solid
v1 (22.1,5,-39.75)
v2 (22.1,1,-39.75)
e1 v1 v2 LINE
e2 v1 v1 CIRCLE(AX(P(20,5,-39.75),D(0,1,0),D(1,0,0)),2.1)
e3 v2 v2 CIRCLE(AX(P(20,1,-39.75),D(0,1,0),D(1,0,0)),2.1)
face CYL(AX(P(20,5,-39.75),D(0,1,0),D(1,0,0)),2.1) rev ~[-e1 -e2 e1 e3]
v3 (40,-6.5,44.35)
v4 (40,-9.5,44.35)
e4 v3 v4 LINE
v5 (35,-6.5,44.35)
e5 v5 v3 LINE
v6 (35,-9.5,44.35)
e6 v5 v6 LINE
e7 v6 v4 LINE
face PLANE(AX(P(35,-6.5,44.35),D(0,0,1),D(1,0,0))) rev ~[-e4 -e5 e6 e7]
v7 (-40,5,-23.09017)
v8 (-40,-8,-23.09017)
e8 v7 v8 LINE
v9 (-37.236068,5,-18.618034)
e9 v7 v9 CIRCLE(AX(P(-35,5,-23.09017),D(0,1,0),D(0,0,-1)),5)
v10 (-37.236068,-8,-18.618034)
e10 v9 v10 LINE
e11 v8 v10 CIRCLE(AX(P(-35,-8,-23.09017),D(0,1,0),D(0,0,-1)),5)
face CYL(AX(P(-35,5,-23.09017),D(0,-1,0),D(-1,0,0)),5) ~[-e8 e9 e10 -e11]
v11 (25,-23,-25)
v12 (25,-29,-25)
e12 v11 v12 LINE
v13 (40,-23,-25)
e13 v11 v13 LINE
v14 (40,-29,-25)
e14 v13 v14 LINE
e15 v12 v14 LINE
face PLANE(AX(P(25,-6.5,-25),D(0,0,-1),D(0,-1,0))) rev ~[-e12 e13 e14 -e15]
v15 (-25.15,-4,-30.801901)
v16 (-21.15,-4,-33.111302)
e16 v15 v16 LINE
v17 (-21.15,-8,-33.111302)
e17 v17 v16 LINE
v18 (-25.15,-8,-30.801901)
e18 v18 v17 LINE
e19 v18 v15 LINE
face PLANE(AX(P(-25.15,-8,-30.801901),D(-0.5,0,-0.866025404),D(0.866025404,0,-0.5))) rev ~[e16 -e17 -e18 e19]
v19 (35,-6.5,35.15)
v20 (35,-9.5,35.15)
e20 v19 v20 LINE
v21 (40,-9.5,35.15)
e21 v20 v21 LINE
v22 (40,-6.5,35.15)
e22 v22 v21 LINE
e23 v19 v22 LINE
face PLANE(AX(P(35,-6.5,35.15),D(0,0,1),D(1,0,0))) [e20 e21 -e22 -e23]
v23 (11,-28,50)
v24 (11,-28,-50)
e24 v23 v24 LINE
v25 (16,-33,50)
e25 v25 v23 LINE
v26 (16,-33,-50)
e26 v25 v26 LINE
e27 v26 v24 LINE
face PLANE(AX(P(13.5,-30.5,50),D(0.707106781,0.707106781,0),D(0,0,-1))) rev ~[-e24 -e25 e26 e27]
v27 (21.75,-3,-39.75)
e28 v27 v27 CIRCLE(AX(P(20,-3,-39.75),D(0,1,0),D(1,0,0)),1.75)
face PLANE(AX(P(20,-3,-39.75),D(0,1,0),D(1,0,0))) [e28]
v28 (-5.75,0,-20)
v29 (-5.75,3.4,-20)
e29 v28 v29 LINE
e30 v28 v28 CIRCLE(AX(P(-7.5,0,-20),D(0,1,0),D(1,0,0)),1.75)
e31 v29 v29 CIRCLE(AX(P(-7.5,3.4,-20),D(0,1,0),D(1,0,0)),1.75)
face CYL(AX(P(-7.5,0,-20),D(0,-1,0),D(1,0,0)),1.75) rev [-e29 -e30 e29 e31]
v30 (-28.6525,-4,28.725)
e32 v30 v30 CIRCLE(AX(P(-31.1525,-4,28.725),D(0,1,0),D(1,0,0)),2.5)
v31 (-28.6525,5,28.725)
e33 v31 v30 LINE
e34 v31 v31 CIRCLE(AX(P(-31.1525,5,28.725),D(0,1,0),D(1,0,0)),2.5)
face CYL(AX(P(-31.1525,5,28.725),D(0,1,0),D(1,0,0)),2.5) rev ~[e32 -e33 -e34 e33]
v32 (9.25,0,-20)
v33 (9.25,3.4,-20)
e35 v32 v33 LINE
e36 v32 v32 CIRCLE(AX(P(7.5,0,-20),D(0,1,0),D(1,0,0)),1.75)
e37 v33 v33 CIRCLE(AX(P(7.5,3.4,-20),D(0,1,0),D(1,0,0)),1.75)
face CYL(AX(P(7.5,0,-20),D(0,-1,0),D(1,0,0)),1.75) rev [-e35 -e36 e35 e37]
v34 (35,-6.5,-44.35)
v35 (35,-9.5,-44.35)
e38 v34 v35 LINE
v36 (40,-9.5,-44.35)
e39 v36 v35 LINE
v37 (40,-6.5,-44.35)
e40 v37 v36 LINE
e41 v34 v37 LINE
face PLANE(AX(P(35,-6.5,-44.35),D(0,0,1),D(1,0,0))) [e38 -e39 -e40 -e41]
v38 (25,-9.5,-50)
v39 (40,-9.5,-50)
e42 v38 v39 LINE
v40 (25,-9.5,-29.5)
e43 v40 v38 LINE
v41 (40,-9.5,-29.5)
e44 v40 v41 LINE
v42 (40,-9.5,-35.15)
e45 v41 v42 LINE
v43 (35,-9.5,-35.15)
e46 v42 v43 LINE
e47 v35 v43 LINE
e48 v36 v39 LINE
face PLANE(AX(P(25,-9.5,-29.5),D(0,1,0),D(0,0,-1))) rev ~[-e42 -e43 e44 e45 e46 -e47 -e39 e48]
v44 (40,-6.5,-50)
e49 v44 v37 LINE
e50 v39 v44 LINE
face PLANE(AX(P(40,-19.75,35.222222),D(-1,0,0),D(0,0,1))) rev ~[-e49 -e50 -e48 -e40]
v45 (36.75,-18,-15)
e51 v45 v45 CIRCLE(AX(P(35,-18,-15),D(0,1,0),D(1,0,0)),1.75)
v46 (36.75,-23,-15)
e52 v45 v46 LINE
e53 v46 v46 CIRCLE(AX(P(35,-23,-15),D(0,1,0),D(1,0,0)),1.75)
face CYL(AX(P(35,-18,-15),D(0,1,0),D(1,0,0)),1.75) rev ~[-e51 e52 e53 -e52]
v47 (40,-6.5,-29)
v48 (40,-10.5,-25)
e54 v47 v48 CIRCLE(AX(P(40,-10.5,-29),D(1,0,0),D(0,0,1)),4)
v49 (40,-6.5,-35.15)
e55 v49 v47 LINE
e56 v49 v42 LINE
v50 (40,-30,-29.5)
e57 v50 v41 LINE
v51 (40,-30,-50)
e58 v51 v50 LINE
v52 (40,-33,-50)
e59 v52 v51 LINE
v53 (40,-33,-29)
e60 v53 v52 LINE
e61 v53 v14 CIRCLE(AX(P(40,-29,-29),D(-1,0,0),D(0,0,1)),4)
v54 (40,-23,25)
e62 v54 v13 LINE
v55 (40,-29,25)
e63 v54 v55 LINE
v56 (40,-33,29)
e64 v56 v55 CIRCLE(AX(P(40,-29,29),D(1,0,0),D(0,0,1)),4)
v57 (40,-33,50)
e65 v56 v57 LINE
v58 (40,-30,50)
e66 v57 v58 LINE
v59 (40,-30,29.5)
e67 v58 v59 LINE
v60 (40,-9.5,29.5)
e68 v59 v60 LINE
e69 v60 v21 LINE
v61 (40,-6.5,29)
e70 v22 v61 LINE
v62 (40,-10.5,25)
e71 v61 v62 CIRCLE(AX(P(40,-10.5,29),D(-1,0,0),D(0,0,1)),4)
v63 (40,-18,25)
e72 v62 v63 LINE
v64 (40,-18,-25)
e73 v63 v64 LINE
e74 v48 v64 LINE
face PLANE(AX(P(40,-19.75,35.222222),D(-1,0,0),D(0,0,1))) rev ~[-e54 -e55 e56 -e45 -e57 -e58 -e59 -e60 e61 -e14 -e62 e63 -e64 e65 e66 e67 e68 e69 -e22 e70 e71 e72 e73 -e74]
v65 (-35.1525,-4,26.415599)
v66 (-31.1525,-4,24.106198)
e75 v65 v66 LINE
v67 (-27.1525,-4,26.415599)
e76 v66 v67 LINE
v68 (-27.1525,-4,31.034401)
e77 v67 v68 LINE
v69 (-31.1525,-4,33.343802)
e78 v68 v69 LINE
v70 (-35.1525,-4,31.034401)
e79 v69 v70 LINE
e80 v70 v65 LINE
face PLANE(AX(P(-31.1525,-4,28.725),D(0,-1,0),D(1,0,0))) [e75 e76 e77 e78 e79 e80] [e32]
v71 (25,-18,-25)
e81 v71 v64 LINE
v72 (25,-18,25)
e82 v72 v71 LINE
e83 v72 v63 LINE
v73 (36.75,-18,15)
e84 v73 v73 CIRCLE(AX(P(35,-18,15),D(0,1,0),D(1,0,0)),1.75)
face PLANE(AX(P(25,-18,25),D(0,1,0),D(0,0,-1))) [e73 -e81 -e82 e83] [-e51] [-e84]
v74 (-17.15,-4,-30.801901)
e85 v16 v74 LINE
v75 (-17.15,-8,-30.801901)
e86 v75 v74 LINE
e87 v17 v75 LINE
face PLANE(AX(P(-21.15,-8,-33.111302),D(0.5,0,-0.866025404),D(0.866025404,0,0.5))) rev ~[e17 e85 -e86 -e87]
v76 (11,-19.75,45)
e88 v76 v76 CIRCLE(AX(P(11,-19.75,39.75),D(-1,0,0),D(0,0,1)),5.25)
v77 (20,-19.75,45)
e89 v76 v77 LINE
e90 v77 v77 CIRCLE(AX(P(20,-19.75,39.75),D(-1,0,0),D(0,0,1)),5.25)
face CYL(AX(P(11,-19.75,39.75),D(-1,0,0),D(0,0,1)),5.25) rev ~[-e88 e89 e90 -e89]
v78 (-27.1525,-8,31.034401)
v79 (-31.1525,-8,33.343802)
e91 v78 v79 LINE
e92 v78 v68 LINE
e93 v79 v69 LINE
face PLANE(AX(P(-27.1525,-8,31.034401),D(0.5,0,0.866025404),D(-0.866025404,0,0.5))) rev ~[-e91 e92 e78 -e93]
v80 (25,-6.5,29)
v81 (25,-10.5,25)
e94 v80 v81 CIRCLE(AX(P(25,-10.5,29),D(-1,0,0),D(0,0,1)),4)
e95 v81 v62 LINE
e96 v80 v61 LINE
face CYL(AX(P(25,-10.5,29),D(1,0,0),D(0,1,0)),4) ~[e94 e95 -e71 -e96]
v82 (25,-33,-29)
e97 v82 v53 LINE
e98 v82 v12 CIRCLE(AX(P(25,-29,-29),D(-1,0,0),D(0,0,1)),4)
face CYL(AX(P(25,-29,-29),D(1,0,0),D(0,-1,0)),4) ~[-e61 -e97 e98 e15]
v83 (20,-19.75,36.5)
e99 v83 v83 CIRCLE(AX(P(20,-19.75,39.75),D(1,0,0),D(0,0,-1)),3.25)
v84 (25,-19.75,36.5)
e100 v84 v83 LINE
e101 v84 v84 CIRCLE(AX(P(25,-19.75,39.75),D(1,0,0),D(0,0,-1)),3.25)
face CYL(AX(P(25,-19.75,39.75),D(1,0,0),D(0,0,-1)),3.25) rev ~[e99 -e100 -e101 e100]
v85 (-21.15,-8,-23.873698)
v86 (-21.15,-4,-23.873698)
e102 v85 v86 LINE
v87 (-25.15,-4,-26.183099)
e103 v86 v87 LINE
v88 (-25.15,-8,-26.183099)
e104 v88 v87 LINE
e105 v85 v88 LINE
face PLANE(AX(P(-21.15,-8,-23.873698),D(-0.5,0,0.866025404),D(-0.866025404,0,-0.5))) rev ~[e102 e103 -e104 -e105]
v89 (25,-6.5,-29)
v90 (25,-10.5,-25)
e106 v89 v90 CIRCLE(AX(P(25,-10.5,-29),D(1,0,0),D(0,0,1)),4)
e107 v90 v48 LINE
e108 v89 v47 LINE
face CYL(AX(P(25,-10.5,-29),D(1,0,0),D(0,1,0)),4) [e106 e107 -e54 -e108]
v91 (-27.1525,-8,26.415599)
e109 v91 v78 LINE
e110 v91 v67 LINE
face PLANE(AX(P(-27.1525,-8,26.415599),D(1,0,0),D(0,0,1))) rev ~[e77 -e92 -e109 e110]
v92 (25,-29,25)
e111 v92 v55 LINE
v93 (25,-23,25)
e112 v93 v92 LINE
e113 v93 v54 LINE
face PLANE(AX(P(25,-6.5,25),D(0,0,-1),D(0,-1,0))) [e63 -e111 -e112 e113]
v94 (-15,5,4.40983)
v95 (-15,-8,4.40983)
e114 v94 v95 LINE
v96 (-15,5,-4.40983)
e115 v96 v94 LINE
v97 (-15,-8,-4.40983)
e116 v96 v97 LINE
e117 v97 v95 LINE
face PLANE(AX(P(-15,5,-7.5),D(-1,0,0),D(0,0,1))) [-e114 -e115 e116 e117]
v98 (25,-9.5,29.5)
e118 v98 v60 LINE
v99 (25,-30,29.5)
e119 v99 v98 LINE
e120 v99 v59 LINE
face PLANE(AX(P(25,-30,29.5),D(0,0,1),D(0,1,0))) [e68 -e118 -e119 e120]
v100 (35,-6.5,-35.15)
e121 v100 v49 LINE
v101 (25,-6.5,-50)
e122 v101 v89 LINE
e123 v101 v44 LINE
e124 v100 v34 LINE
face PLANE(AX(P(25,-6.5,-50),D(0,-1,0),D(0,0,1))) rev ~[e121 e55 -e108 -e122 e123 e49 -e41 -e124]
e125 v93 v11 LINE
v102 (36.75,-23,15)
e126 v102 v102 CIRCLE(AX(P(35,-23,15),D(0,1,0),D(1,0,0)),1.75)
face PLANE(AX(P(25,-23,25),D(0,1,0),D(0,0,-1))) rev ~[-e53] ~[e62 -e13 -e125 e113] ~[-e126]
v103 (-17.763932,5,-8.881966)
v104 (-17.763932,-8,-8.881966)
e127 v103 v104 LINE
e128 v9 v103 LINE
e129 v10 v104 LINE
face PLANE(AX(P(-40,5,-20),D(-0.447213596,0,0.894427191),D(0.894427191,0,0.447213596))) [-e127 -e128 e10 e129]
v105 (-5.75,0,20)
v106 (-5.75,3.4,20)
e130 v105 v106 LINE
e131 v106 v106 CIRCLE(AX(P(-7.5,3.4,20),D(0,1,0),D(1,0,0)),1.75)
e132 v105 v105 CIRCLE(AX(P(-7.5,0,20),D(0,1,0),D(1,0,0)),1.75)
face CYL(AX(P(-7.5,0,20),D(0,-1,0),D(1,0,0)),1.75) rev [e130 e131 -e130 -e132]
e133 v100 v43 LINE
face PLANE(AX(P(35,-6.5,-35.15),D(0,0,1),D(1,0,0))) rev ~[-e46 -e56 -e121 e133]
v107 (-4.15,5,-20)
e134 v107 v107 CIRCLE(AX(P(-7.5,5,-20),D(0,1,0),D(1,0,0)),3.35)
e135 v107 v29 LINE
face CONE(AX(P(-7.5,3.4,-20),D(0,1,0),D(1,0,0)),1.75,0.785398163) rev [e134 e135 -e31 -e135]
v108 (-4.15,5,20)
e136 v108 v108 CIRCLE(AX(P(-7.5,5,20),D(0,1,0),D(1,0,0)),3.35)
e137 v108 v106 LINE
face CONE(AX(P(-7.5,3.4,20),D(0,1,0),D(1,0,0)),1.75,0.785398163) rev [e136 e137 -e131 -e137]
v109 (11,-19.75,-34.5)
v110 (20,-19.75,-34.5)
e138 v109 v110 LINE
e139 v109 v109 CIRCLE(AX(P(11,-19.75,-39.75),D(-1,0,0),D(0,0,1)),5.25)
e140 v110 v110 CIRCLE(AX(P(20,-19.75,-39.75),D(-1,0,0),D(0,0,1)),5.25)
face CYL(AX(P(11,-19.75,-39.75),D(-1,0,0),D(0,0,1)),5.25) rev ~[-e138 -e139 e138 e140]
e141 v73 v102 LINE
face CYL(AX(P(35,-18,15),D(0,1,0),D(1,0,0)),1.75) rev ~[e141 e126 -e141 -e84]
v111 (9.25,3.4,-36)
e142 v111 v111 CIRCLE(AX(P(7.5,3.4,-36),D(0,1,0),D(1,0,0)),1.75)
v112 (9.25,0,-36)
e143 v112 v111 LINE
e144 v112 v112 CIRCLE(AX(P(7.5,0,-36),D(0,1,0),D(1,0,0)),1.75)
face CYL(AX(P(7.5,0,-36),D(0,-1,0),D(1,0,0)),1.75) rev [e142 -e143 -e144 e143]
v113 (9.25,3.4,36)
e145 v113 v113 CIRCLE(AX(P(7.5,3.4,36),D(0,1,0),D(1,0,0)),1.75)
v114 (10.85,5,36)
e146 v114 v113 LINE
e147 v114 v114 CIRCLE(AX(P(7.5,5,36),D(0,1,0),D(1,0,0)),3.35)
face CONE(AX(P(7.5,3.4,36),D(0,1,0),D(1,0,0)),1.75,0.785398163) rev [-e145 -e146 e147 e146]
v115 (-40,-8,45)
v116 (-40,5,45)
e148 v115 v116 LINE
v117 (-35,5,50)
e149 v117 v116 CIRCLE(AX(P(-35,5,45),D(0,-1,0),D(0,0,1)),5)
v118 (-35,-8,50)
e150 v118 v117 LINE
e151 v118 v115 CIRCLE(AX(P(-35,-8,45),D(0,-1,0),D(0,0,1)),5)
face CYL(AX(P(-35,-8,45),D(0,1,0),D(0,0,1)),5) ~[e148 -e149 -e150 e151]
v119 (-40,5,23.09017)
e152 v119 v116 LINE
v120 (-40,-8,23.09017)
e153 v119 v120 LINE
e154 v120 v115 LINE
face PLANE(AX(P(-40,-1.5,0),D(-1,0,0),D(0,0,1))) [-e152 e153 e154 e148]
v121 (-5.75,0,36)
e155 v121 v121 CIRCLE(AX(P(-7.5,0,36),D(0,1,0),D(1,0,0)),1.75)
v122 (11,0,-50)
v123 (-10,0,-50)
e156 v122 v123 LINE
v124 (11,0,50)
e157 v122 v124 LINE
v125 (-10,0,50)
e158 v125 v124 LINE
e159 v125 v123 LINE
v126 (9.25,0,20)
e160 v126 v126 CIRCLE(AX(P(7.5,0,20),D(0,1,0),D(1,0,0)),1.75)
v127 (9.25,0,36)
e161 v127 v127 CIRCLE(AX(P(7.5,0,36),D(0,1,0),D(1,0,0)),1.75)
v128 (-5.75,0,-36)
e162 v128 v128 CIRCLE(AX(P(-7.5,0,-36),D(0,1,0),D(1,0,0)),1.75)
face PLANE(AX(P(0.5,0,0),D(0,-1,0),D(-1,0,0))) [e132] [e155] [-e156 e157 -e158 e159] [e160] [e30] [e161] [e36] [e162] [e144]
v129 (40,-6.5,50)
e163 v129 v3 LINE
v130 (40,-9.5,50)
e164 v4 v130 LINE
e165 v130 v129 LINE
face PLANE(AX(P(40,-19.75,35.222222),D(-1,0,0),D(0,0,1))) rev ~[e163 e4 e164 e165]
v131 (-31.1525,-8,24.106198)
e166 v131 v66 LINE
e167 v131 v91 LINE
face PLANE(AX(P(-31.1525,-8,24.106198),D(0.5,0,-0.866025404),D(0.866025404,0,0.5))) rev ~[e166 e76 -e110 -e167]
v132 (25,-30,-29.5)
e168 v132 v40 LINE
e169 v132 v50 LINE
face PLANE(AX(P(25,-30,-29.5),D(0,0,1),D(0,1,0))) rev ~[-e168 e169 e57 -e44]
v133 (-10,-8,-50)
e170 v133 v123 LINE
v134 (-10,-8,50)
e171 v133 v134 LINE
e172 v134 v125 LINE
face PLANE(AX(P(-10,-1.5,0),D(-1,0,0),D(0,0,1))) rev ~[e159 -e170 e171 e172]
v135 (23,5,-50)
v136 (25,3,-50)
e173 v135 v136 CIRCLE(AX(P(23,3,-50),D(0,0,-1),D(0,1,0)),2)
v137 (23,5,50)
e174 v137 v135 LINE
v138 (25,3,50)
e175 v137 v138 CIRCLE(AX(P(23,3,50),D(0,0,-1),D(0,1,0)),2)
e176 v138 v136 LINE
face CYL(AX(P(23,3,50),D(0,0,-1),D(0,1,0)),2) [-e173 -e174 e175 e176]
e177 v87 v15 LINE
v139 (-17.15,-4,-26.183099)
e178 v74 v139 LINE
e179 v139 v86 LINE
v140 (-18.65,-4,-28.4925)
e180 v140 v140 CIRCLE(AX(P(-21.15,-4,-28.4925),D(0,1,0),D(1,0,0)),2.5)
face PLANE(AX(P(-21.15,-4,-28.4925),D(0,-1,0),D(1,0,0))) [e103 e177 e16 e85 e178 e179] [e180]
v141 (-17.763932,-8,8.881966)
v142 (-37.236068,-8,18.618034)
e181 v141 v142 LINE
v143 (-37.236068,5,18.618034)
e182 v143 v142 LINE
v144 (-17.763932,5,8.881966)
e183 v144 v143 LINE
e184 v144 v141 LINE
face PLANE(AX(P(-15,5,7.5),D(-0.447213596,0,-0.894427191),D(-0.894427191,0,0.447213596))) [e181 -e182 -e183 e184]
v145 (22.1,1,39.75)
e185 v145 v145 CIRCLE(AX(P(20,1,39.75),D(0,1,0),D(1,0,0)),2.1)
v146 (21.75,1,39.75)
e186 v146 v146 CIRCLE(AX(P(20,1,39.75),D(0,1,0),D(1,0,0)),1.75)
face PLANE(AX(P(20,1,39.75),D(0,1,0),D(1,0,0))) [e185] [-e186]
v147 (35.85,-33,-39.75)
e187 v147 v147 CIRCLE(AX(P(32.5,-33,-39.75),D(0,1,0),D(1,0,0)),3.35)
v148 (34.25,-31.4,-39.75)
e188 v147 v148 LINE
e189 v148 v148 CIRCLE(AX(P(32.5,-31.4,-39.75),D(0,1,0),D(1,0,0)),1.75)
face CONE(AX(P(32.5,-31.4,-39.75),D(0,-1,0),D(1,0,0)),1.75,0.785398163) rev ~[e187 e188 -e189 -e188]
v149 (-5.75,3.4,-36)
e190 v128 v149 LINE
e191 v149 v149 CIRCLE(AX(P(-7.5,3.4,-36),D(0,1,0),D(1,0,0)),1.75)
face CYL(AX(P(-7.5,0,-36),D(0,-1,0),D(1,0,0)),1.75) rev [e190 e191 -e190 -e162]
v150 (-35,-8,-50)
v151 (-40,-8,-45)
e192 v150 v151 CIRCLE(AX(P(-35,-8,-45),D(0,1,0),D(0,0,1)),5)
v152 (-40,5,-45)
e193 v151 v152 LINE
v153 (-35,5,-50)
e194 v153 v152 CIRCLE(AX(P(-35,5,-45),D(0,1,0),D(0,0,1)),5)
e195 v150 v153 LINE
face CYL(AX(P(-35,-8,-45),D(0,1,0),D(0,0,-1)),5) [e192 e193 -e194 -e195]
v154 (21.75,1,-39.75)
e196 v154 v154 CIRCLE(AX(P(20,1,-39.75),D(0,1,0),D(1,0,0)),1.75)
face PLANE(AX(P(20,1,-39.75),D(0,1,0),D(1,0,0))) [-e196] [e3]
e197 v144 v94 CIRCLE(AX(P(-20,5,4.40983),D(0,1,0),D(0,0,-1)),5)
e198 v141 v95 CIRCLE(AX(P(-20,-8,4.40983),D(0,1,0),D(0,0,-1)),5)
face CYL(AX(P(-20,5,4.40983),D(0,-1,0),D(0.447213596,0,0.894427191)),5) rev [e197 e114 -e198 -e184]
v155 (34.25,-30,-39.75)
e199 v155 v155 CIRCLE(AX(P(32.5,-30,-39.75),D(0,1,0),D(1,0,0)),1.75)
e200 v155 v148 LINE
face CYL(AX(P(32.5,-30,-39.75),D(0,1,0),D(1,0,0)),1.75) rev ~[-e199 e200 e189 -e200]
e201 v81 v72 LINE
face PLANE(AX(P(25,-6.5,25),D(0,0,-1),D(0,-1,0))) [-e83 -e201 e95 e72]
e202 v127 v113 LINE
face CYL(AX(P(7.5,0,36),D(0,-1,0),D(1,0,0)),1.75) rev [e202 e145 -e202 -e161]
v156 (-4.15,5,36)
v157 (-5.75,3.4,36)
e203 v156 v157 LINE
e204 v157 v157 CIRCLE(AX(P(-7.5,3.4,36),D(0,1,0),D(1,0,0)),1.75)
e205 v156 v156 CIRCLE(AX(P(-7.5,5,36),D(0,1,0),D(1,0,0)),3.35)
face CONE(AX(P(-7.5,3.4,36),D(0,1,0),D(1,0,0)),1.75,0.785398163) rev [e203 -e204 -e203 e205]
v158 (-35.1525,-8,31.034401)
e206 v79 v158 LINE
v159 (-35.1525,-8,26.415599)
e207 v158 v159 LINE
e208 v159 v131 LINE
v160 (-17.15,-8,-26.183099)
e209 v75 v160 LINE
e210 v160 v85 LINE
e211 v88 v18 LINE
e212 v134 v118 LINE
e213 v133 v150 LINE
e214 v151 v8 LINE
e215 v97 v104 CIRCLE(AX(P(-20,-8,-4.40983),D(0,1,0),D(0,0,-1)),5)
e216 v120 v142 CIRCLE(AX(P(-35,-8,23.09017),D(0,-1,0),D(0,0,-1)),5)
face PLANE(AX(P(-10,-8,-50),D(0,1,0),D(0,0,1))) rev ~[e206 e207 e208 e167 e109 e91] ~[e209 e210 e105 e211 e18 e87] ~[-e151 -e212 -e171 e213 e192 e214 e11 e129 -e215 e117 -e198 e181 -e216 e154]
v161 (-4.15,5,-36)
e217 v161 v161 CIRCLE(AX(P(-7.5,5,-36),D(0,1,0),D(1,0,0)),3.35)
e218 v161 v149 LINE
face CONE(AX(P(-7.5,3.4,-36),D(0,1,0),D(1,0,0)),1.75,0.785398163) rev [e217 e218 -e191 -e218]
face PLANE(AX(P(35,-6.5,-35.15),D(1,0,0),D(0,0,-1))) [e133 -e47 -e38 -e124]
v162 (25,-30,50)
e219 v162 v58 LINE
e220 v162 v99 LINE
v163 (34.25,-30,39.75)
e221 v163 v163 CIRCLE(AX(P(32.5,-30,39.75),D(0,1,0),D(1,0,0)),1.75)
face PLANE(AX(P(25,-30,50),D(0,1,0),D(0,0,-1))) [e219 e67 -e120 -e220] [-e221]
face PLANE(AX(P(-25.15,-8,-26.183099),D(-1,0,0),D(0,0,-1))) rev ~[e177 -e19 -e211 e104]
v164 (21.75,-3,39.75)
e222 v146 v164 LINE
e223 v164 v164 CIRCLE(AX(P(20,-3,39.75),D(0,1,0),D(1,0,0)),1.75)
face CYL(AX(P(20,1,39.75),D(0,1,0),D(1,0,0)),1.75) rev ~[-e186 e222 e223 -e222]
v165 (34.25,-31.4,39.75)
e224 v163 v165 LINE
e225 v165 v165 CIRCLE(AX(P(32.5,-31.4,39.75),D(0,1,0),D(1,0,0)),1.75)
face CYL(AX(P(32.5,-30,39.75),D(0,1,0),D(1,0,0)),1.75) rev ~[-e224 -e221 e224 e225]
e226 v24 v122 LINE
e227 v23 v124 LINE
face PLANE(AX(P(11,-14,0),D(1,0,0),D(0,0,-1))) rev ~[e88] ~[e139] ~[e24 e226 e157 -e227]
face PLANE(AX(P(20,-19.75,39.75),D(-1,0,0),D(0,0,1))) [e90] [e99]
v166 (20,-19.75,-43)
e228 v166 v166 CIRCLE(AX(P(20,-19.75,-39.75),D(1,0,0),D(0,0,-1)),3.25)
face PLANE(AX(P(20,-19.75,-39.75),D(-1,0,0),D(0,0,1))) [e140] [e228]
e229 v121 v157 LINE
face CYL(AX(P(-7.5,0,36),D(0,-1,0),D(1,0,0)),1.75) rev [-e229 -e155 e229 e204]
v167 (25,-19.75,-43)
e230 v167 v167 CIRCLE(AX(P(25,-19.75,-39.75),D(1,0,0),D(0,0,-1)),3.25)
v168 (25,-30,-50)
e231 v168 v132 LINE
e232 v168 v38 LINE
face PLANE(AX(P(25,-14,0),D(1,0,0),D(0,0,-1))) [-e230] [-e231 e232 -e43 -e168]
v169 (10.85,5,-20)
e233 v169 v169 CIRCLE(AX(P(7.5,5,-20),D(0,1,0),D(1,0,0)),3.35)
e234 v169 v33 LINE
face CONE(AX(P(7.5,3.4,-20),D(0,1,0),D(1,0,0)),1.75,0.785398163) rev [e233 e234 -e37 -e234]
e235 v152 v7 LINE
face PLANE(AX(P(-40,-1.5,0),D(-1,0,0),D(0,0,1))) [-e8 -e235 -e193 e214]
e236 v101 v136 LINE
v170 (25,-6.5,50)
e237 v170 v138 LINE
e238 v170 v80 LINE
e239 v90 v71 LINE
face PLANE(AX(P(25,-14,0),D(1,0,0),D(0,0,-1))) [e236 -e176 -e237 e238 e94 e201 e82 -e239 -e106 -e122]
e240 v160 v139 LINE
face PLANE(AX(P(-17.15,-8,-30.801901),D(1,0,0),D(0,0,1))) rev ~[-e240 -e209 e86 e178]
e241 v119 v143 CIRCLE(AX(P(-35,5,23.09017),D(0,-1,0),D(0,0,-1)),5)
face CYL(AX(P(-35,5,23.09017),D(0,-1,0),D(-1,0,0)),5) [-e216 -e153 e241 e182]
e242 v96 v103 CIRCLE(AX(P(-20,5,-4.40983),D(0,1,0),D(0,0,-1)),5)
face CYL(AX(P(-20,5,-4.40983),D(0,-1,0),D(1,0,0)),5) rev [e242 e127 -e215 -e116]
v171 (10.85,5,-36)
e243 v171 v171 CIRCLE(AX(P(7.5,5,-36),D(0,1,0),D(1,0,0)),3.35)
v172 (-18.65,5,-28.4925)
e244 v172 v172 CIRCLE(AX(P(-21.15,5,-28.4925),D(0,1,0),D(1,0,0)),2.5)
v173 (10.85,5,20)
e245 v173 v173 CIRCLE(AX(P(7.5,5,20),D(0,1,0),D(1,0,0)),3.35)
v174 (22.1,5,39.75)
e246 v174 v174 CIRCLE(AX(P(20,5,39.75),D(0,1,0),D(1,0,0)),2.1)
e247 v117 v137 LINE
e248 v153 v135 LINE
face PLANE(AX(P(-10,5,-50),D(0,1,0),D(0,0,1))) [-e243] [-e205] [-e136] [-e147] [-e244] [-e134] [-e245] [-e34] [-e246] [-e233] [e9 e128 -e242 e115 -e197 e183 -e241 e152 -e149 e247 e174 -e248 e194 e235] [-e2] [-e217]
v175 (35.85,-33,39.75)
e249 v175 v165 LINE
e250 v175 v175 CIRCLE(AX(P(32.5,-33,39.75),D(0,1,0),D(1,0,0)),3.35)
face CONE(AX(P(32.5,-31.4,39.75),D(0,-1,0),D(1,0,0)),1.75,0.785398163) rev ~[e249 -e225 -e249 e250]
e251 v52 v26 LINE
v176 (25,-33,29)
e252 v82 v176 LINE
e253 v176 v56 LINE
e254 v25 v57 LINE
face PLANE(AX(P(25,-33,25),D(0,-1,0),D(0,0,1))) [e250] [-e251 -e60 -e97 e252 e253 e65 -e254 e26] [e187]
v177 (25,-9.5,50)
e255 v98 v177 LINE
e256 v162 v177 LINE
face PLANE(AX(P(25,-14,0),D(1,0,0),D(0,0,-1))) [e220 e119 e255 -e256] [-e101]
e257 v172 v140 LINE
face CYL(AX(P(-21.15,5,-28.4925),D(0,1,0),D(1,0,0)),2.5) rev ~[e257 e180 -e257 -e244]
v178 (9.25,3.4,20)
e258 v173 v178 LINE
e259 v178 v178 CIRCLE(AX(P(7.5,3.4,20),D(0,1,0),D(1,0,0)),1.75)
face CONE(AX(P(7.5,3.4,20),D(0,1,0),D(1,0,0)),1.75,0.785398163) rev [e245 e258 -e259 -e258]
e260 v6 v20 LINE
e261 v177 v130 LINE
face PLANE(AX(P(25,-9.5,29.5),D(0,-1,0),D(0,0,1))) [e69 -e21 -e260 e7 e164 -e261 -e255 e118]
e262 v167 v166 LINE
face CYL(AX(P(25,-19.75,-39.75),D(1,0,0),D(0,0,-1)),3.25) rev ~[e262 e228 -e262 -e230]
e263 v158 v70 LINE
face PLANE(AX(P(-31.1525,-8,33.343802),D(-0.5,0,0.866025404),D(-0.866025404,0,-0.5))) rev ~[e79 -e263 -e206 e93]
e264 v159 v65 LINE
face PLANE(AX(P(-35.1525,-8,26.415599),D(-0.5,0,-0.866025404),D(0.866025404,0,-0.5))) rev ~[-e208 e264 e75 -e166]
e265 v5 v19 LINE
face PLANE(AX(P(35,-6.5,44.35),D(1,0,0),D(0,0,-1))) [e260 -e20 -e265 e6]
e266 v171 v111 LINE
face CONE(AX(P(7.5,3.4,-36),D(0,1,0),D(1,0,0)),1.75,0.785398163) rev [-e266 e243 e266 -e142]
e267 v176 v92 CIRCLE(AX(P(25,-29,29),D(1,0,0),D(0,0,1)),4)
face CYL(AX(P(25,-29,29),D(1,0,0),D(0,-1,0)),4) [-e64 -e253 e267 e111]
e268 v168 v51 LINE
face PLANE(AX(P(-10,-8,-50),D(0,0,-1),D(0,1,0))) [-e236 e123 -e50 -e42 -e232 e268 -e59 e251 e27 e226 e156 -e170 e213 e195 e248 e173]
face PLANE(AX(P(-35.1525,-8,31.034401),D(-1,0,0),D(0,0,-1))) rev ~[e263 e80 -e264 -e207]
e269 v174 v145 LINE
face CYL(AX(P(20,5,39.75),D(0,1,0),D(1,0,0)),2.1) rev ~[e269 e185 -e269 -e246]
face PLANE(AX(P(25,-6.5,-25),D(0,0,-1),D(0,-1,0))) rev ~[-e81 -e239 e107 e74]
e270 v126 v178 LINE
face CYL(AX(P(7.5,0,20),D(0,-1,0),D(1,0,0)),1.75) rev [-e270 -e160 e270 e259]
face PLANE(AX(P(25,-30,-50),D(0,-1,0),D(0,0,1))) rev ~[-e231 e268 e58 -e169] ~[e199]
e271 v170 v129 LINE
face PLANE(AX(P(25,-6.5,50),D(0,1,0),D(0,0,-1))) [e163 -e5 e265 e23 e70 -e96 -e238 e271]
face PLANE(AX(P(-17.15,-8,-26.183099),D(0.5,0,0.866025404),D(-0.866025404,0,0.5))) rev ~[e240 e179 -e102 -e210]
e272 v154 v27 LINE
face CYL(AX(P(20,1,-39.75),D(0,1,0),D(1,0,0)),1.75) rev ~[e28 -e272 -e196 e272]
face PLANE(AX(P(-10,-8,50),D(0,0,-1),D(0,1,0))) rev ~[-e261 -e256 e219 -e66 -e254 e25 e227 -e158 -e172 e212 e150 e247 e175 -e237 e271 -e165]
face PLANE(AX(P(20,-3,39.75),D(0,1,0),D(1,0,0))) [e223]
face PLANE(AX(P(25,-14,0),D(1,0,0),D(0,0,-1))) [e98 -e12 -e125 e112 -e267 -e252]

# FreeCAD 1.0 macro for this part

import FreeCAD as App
import Part
import Sketcher
Q = App.Units.Quantity


def edges_at(feature, points):
    """Names of the edges that pass closest to the given points."""
    edges = feature.Shape.Edges
    near = lambda p: min(range(len(edges)), key=lambda i: edges[i].distToShape(Part.Vertex(*p))[0])
    return sorted({f"Edge{near(p) + 1}" for p in points})


def add_polygon(sketch, points):
    """Adds a closed chain of lines whose ends are joined by coincident constraints."""
    first, n = sketch.GeometryCount, len(points)
    for a, b in zip(points, points[1:] + points[:1]):
        sketch.addGeometry(Part.LineSegment(App.Vector(*a, 0), App.Vector(*b, 0)), False)
    for i in range(n):
        sketch.addConstraint(Sketcher.Constraint("Coincident", first + i, 2, first + (i + 1) % n, 1))

doc = App.newDocument("Part")
params = doc.addObject("Spreadsheet::Sheet", "Params")
for row, (alias, value) in enumerate([
    ("sketch1_diameter", "3.5 mm"),
    ("sketch1_width", "21 mm"),
    ("sketch1_height", "100 mm"),
    ("pad1_length", "5 mm"),
    ("sketch2_width", "38 mm"),
    ("sketch2_height", "100 mm"),
    ("pad2_length", "14 mm"),
    ("sketch3_width", "5 mm"),
    ("sketch3_height", "50 mm"),
    ("pad3_length", "15 mm"),
    ("sketch4_diameter", "3.5 mm"),
    ("sketch5_width", "3 mm"),
    ("sketch5_height", "25 mm"),
    ("sketch5_width2", "20.5 mm"),
    ("pad4_length", "15 mm"),
    ("sketch6_diameter", "6.5 mm"),
    ("sketch7_diameter", "10.5 mm"),
    ("pocket3_length", "9 mm"),
    ("sketch8_width", "5 mm"),
    ("sketch8_height", "9.2 mm"),
    ("sketch9_width", "5 mm"),
    ("sketch9_height", "9.2 mm"),
    ("sketch10_diameter", "3.5 mm"),
    ("sketch11_width", "13 mm"),
    ("sketch11_height", "100 mm"),
    ("pad5_length", "30 mm"),
    ("sketch12_diameter", "5 mm"),
    ("pocket8_length", "4 mm"),
    ("sketch14_diameter", "4.2 mm"),
    ("pocket9_length", "4 mm"),
    ("chamfer_size", "1.6 mm"),
    ("sketch15_height", "40 mm"),
    ("sketch15_height2", "15 mm"),
    ("chamfer2_size", "1.6 mm"),
    ("chamfer3_size", "5 mm"),
    ("sketch16_diameter", "3.5 mm"),
    ("pocket11_length", "4 mm"),
    ("fillet_radius", "5 mm"),
    ("fillet2_radius", "2 mm"),
    ("fillet3_radius", "4 mm"),
], start=1):
    params.set(f"A{row}", alias)
    params.set(f"B{row}", "=" + value)
    params.setAlias(f"B{row}", alias)

body = doc.addObject("PartDesign::Body", "Body")

sketch1 = doc.addObject("Sketcher::SketchObject", "Sketch")
body.addObject(sketch1)
sketch1.AttachmentSupport = (doc.XZ_Plane, [""])
sketch1.MapMode = "FlatFace"
add_polygon(sketch1, [(11, -50), (-10, -50), (-10, 50), (11, 50)])
sketch1.addGeometry(Part.Circle(App.Vector(7.5, 36, 0), App.Vector(0, 0, 1), 1.8), False)
sketch1.addGeometry(Part.Circle(App.Vector(7.5, 20, 0), App.Vector(0, 0, 1), 1.8), False)
sketch1.addGeometry(Part.Circle(App.Vector(-7.5, 36, 0), App.Vector(0, 0, 1), 1.8), False)
sketch1.addGeometry(Part.Circle(App.Vector(-7.5, 20, 0), App.Vector(0, 0, 1), 1.8), False)
sketch1.addGeometry(Part.Circle(App.Vector(7.5, -20, 0), App.Vector(0, 0, 1), 1.8), False)
sketch1.addGeometry(Part.Circle(App.Vector(7.5, -36, 0), App.Vector(0, 0, 1), 1.8), False)
sketch1.addGeometry(Part.Circle(App.Vector(-7.5, -20, 0), App.Vector(0, 0, 1), 1.8), False)
sketch1.addGeometry(Part.Circle(App.Vector(-7.5, -36, 0), App.Vector(0, 0, 1), 1.8), False)
sketch1.addConstraint([
    Sketcher.Constraint("Horizontal", 0),
    Sketcher.Constraint("Vertical", 1),
    Sketcher.Constraint("Horizontal", 2),
    Sketcher.Constraint("Vertical", 3),
    Sketcher.Constraint("Equal", 4, 5),
    Sketcher.Constraint("Equal", 5, 6),
    Sketcher.Constraint("Equal", 6, 7),
    Sketcher.Constraint("Equal", 7, 8),
    Sketcher.Constraint("Equal", 8, 9),
    Sketcher.Constraint("Equal", 9, 10),
    Sketcher.Constraint("Equal", 10, 11),
    Sketcher.Constraint("Symmetric", 7, 3, 8, 3, -1, 1),
    Sketcher.Constraint("Symmetric", 6, 3, 9, 3, -1, 1),
    Sketcher.Constraint("Symmetric", 5, 3, 10, 3, -1, 1),
    Sketcher.Constraint("Symmetric", 4, 3, 11, 3, -1, 1),
    Sketcher.Constraint("Symmetric", 4, 3, 6, 3, -2),
    Sketcher.Constraint("Symmetric", 5, 3, 7, 3, -2),
    Sketcher.Constraint("Vertical", 4, 3, 5, 3),
    Sketcher.Constraint("Diameter", 4, Q("3.5 mm")),
    Sketcher.Constraint("DistanceX", 0, 2, 0, 1, Q("21 mm")),
    Sketcher.Constraint("DistanceY", 1, 1, 1, 2, Q("100 mm")),
    Sketcher.Constraint("DistanceY", -1, 1, 4, 3, Q("36 mm")),
    Sketcher.Constraint("DistanceY", -1, 1, 5, 3, Q("20 mm")),
    Sketcher.Constraint("DistanceX", 0, 2, -1, 1, Q("10 mm")),
    Sketcher.Constraint("DistanceY", 0, 2, -1, 1, Q("50 mm")),
    Sketcher.Constraint("DistanceX", 6, 3, 4, 3, Q("15 mm")),
])
sketch1.setExpression("Constraints[22]", "Params.sketch1_diameter")
sketch1.setExpression("Constraints[23]", "Params.sketch1_width")
sketch1.setExpression("Constraints[24]", "Params.sketch1_height")
pad1 = doc.addObject("PartDesign::Pad", "Pad")
body.addObject(pad1)
pad1.Profile = sketch1
pad1.setExpression("Length", "Params.pad1_length")
pad1.Reversed = True

sketch2 = doc.addObject("Sketcher::SketchObject", "Sketch001")
body.addObject(sketch2)
sketch2.AttachmentSupport = (doc.YZ_Plane, [""])
sketch2.MapMode = "FlatFace"
sketch2.AttachmentOffset = App.Placement(App.Vector(0, 0, 11), App.Rotation())
add_polygon(sketch2, [(5, 50), (-33, 50), (-33, -50), (5, -50)])
sketch2.addConstraint([
    Sketcher.Constraint("Horizontal", 0),
    Sketcher.Constraint("Vertical", 1),
    Sketcher.Constraint("Horizontal", 2),
    Sketcher.Constraint("Vertical", 3),
    Sketcher.Constraint("DistanceX", 0, 2, 0, 1, Q("38 mm")),
    Sketcher.Constraint("DistanceY", 1, 2, 1, 1, Q("100 mm")),
    Sketcher.Constraint("DistanceX", 0, 2, -1, 1, Q("33 mm")),
    Sketcher.Constraint("DistanceY", -1, 1, 0, 2, Q("50 mm")),
])
sketch2.setExpression("Constraints[8]", "Params.sketch2_width")
sketch2.setExpression("Constraints[9]", "Params.sketch2_height")
pad2 = doc.addObject("PartDesign::Pad", "Pad001")
body.addObject(pad2)
pad2.Profile = sketch2
pad2.setExpression("Length", "Params.pad2_length")

sketch3 = doc.addObject("Sketcher::SketchObject", "Sketch002")
body.addObject(sketch3)
sketch3.AttachmentSupport = (doc.YZ_Plane, [""])
sketch3.MapMode = "FlatFace"
sketch3.AttachmentOffset = App.Placement(App.Vector(0, 0, 25), App.Rotation())
add_polygon(sketch3, [(-18, 25), (-23, 25), (-23, -25), (-18, -25)])
sketch3.addConstraint([
    Sketcher.Constraint("Horizontal", 0),
    Sketcher.Constraint("Vertical", 1),
    Sketcher.Constraint("Horizontal", 2),
    Sketcher.Constraint("Vertical", 3),
    Sketcher.Constraint("DistanceX", 0, 2, 0, 1, Q("5 mm")),
    Sketcher.Constraint("DistanceY", 1, 2, 1, 1, Q("50 mm")),
    Sketcher.Constraint("DistanceX", 0, 2, -1, 1, Q("23 mm")),
    Sketcher.Constraint("DistanceY", -1, 1, 0, 2, Q("25 mm")),
])
sketch3.setExpression("Constraints[8]", "Params.sketch3_width")
sketch3.setExpression("Constraints[9]", "Params.sketch3_height")
pad3 = doc.addObject("PartDesign::Pad", "Pad002")
body.addObject(pad3)
pad3.Profile = sketch3
pad3.setExpression("Length", "Params.pad3_length")

sketch4 = doc.addObject("Sketcher::SketchObject", "Sketch003")
body.addObject(sketch4)
sketch4.AttachmentSupport = (doc.XZ_Plane, [""])
sketch4.MapMode = "FlatFace"
sketch4.AttachmentOffset = App.Placement(App.Vector(0, 0, 18), App.Rotation())
sketch4.addGeometry([
    Part.Circle(App.Vector(35, -15, 0), App.Vector(0, 0, 1), 1.8),
    Part.Circle(App.Vector(35, 15, 0), App.Vector(0, 0, 1), 1.8),
], False)
sketch4.addConstraint([
    Sketcher.Constraint("Equal", 0, 1),
    Sketcher.Constraint("Symmetric", 0, 3, 1, 3, -1),
    Sketcher.Constraint("Diameter", 0, Q("3.5 mm")),
    Sketcher.Constraint("DistanceX", -1, 1, 0, 3, Q("35 mm")),
    Sketcher.Constraint("DistanceY", 0, 3, -1, 1, Q("15 mm")),
])
sketch4.setExpression("Constraints[2]", "Params.sketch4_diameter")
pocket1 = doc.addObject("PartDesign::Pocket", "Pocket")
body.addObject(pocket1)
pocket1.Profile = sketch4
pocket1.Type = "ThroughAll"
pocket1.Reversed = True

sketch5 = doc.addObject("Sketcher::SketchObject", "Sketch004")
body.addObject(sketch5)
sketch5.AttachmentSupport = (doc.YZ_Plane, [""])
sketch5.MapMode = "FlatFace"
sketch5.AttachmentOffset = App.Placement(App.Vector(0, 0, 25), App.Rotation())
add_polygon(sketch5, [(-6.5, 25), (-6.5, 50), (-9.5, 50), (-9.5, 29.5), (-30, 29.5), (-30, 50), (-33, 50), (-33, 25)])
add_polygon(sketch5, [(-30, -29.5), (-9.5, -29.5), (-9.5, -50), (-6.5, -50), (-6.5, -25), (-33, -25), (-33, -50), (-30, -50)])
sketch5.addConstraint([
    Sketcher.Constraint("Vertical", 0),
    Sketcher.Constraint("Horizontal", 1),
    Sketcher.Constraint("Vertical", 2),
    Sketcher.Constraint("Horizontal", 3),
    Sketcher.Constraint("Vertical", 4),
    Sketcher.Constraint("Horizontal", 5),
    Sketcher.Constraint("Vertical", 6),
    Sketcher.Constraint("Horizontal", 7),
    Sketcher.Constraint("Horizontal", 8),
    Sketcher.Constraint("Vertical", 9),
    Sketcher.Constraint("Horizontal", 10),
    Sketcher.Constraint("Vertical", 11),
    Sketcher.Constraint("Horizontal", 12),
    Sketcher.Constraint("Vertical", 13),
    Sketcher.Constraint("Horizontal", 14),
    Sketcher.Constraint("Vertical", 15),
    Sketcher.Constraint("Symmetric", 2, 2, 8, 2, -1),
    Sketcher.Constraint("Symmetric", 0, 2, 10, 2, -1),
    Sketcher.Constraint("Symmetric", 6, 2, 12, 2, -1),
    Sketcher.Constraint("Symmetric", 4, 2, 14, 2, -1),
    Sketcher.Constraint("Horizontal", 1, 2, 4, 2),
    Sketcher.Constraint("Equal", 1, 5),
    Sketcher.Constraint("Equal", 8, 2),
    Sketcher.Constraint("DistanceX", 1, 2, 1, 1, Q("3 mm")),
    Sketcher.Constraint("DistanceY", 0, 1, 0, 2, Q("25 mm")),
    Sketcher.Constraint("DistanceX", 3, 2, 3, 1, Q("20.5 mm")),
    Sketcher.Constraint("DistanceY", -1, 1, 0, 2, Q("50 mm")),
    Sketcher.Constraint("DistanceX", 3, 2, -1, 1, Q("30 mm")),
])
sketch5.setExpression("Constraints[39]", "Params.sketch5_width")
sketch5.setExpression("Constraints[40]", "Params.sketch5_height")
sketch5.setExpression("Constraints[41]", "Params.sketch5_width2")
pad4 = doc.addObject("PartDesign::Pad", "Pad003")
body.addObject(pad4)
pad4.Profile = sketch5
pad4.setExpression("Length", "Params.pad4_length")

sketch6 = doc.addObject("Sketcher::SketchObject", "Sketch005")
body.addObject(sketch6)
sketch6.AttachmentSupport = (doc.YZ_Plane, [""])
sketch6.MapMode = "FlatFace"
sketch6.AttachmentOffset = App.Placement(App.Vector(0, 0, 25), App.Rotation())
sketch6.addGeometry([
    Part.Circle(App.Vector(-19.8, 39.8, 0), App.Vector(0, 0, 1), 3.2),
    Part.Circle(App.Vector(-19.8, -39.8, 0), App.Vector(0, 0, 1), 3.2),
], False)
sketch6.addConstraint([
    Sketcher.Constraint("Equal", 0, 1),
    Sketcher.Constraint("Symmetric", 0, 3, 1, 3, -1),
    Sketcher.Constraint("Diameter", 0, Q("6.5 mm")),
    Sketcher.Constraint("DistanceY", 1, 3, 0, 3, Q("79.5 mm")),
    Sketcher.Constraint("DistanceX", 0, 3, -1, 1, Q("19.75 mm")),
])
sketch6.setExpression("Constraints[2]", "Params.sketch6_diameter")
pocket2 = doc.addObject("PartDesign::Pocket", "Pocket001")
body.addObject(pocket2)
pocket2.Profile = sketch6
pocket2.Type = "ThroughAll"

sketch7 = doc.addObject("Sketcher::SketchObject", "Sketch006")
body.addObject(sketch7)
sketch7.AttachmentSupport = (doc.YZ_Plane, [""])
sketch7.MapMode = "FlatFace"
sketch7.AttachmentOffset = App.Placement(App.Vector(0, 0, 11), App.Rotation())
sketch7.addGeometry([
    Part.Circle(App.Vector(-20, -40, 0), App.Vector(0, 0, 1), 5),
    Part.Circle(App.Vector(-20, 40, 0), App.Vector(0, 0, 1), 5),
], False)
sketch7.addConstraint([
    Sketcher.Constraint("Equal", 0, 1),
    Sketcher.Constraint("Symmetric", 0, 3, 1, 3, -1),
    Sketcher.Constraint("Diameter", 0, Q("10.5 mm")),
    Sketcher.Constraint("DistanceY", 0, 3, 1, 3, Q("79.5 mm")),
    Sketcher.Constraint("DistanceX", 0, 3, -1, 1, Q("19.75 mm")),
])
sketch7.setExpression("Constraints[2]", "Params.sketch7_diameter")
pocket3 = doc.addObject("PartDesign::Pocket", "Pocket002")
body.addObject(pocket3)
pocket3.Profile = sketch7
pocket3.setExpression("Length", "Params.pocket3_length")
pocket3.Reversed = True

sketch8 = doc.addObject("Sketcher::SketchObject", "Sketch007")
body.addObject(sketch8)
sketch8.AttachmentSupport = (doc.XZ_Plane, [""])
sketch8.MapMode = "FlatFace"
sketch8.AttachmentOffset = App.Placement(App.Vector(0, 0, 6.5), App.Rotation())
add_polygon(sketch8, [(35, 35), (35, 44), (40, 44), (40, 35)])
sketch8.addConstraint([
    Sketcher.Constraint("Vertical", 0),
    Sketcher.Constraint("Horizontal", 1),
    Sketcher.Constraint("Vertical", 2),
    Sketcher.Constraint("Horizontal", 3),
    Sketcher.Constraint("DistanceX", 1, 1, 1, 2, Q("5 mm")),
    Sketcher.Constraint("DistanceY", 0, 1, 0, 2, Q("9.2 mm")),
    Sketcher.Constraint("DistanceX", -1, 1, 0, 2, Q("35 mm")),
    Sketcher.Constraint("DistanceY", -1, 1, 0, 2, Q("44.35 mm")),
])
sketch8.setExpression("Constraints[8]", "Params.sketch8_width")
sketch8.setExpression("Constraints[9]", "Params.sketch8_height")
pocket4 = doc.addObject("PartDesign::Pocket", "Pocket003")
body.addObject(pocket4)
pocket4.Profile = sketch8
pocket4.Type = "UpToFirst"
pocket4.Reversed = True

sketch9 = doc.addObject("Sketcher::SketchObject", "Sketch008")
body.addObject(sketch9)
sketch9.AttachmentSupport = (doc.XZ_Plane, [""])
sketch9.MapMode = "FlatFace"
sketch9.AttachmentOffset = App.Placement(App.Vector(0, 0, 6.5), App.Rotation())
add_polygon(sketch9, [(35, -44), (35, -35), (40, -35), (40, -44)])
sketch9.addConstraint([
    Sketcher.Constraint("Vertical", 0),
    Sketcher.Constraint("Horizontal", 1),
    Sketcher.Constraint("Vertical", 2),
    Sketcher.Constraint("Horizontal", 3),
    Sketcher.Constraint("DistanceX", 1, 1, 1, 2, Q("5 mm")),
    Sketcher.Constraint("DistanceY", 0, 1, 0, 2, Q("9.2 mm")),
    Sketcher.Constraint("DistanceX", -1, 1, 0, 2, Q("35 mm")),
    Sketcher.Constraint("DistanceY", 0, 2, -1, 1, Q("35.15 mm")),
])
sketch9.setExpression("Constraints[8]", "Params.sketch9_width")
sketch9.setExpression("Constraints[9]", "Params.sketch9_height")
pocket5 = doc.addObject("PartDesign::Pocket", "Pocket004")
body.addObject(pocket5)
pocket5.Profile = sketch9
pocket5.Type = "UpToFirst"
pocket5.Reversed = True

sketch10 = doc.addObject("Sketcher::SketchObject", "Sketch009")
body.addObject(sketch10)
sketch10.AttachmentSupport = (doc.XZ_Plane, [""])
sketch10.MapMode = "FlatFace"
sketch10.AttachmentOffset = App.Placement(App.Vector(0, 0, 30), App.Rotation())
sketch10.addGeometry([
    Part.Circle(App.Vector(32.5, 39.8, 0), App.Vector(0, 0, 1), 1.8),
    Part.Circle(App.Vector(32.5, -39.8, 0), App.Vector(0, 0, 1), 1.8),
], False)
sketch10.addConstraint([
    Sketcher.Constraint("Equal", 0, 1),
    Sketcher.Constraint("Symmetric", 0, 3, 1, 3, -1),
    Sketcher.Constraint("Diameter", 0, Q("3.5 mm")),
    Sketcher.Constraint("DistanceX", -1, 1, 0, 3, Q("32.5 mm")),
    Sketcher.Constraint("DistanceY", 1, 3, 0, 3, Q("79.5 mm")),
])
sketch10.setExpression("Constraints[2]", "Params.sketch10_diameter")
pocket6 = doc.addObject("PartDesign::Pocket", "Pocket005")
body.addObject(pocket6)
pocket6.Profile = sketch10
pocket6.Type = "ThroughAll"
pocket6.Reversed = True

sketch11 = doc.addObject("Sketcher::SketchObject", "Sketch010")
body.addObject(sketch11)
sketch11.AttachmentSupport = (doc.YZ_Plane, [""])
sketch11.MapMode = "FlatFace"
sketch11.AttachmentOffset = App.Placement(App.Vector(0, 0, -10), App.Rotation())
add_polygon(sketch11, [(5, -50), (-8, -50), (-8, 50), (5, 50)])
sketch11.addConstraint([
    Sketcher.Constraint("Horizontal", 0),
    Sketcher.Constraint("Vertical", 1),
    Sketcher.Constraint("Horizontal", 2),
    Sketcher.Constraint("Vertical", 3),
    Sketcher.Constraint("DistanceX", 0, 2, 0, 1, Q("13 mm")),
    Sketcher.Constraint("DistanceY", 1, 1, 1, 2, Q("100 mm")),
    Sketcher.Constraint("DistanceX", 0, 2, -1, 1, Q("8 mm")),
    Sketcher.Constraint("DistanceY", 0, 2, -1, 1, Q("50 mm")),
])
sketch11.setExpression("Constraints[8]", "Params.sketch11_width")
sketch11.setExpression("Constraints[9]", "Params.sketch11_height")
pad5 = doc.addObject("PartDesign::Pad", "Pad004")
body.addObject(pad5)
pad5.Profile = sketch11
pad5.setExpression("Length", "Params.pad5_length")
pad5.Reversed = True

sketch12 = doc.addObject("Sketcher::SketchObject", "Sketch011")
body.addObject(sketch12)
sketch12.AttachmentSupport = (doc.XZ_Plane, [""])
sketch12.MapMode = "FlatFace"
sketch12.AttachmentOffset = App.Placement(App.Vector(0, 0, -5), App.Rotation())
sketch12.addGeometry([
    Part.Circle(App.Vector(-21.1, -28.5, 0), App.Vector(0, 0, 1), 2.5),
    Part.Circle(App.Vector(-31.2, 28.7, 0), App.Vector(0, 0, 1), 2.5),
], False)
sketch12.addConstraint([
    Sketcher.Constraint("Equal", 0, 1),
    Sketcher.Constraint("Diameter", 0, Q("5 mm")),
    Sketcher.Constraint("DistanceX", 0, 3, -1, 1, Q("21.15 mm")),
    Sketcher.Constraint("DistanceY", -1, 1, 1, 3, Q("28.725 mm")),
    Sketcher.Constraint("DistanceY", 0, 3, -1, 1, Q("28.4925 mm")),
    Sketcher.Constraint("DistanceX", 1, 3, -1, 1, Q("31.1525 mm")),
])
sketch12.setExpression("Constraints[1]", "Params.sketch12_diameter")
pocket7 = doc.addObject("PartDesign::Pocket", "Pocket006")
body.addObject(pocket7)
pocket7.Profile = sketch12
pocket7.Type = "ThroughAll"
pocket7.Reversed = True

sketch13 = doc.addObject("Sketcher::SketchObject", "Sketch012")
body.addObject(sketch13)
sketch13.AttachmentSupport = (doc.XZ_Plane, [""])
sketch13.MapMode = "FlatFace"
sketch13.AttachmentOffset = App.Placement(App.Vector(0, 0, 8), App.Rotation())
add_polygon(sketch13, [(-27.2, 26.4), (-27.2, 31), (-31.2, 33.3), (-35.2, 31), (-35.2, 26.4), (-31.2, 24.1)])
add_polygon(sketch13, [(-25.1, -30.8), (-21.1, -33.1), (-17.1, -30.8), (-17.1, -26.2), (-21.1, -23.9), (-25.1, -26.2)])
sketch13.addConstraint([
    Sketcher.Constraint("Vertical", 0),
    Sketcher.Constraint("Vertical", 3),
    Sketcher.Constraint("Vertical", 8),
    Sketcher.Constraint("Vertical", 11),
    Sketcher.Constraint("Parallel", 1, 4),
    Sketcher.Constraint("Parallel", 2, 5),
    Sketcher.Constraint("Parallel", 4, 6),
    Sketcher.Constraint("Parallel", 5, 7),
    Sketcher.Constraint("Parallel", 6, 9),
    Sketcher.Constraint("Parallel", 7, 10),
    Sketcher.Constraint("Horizontal", 0, 2, 2, 2),
    Sketcher.Constraint("Horizontal", 3, 2, 5, 2),
    Sketcher.Constraint("Horizontal", 8, 2, 10, 2),
    Sketcher.Constraint("Horizontal", 7, 2, 11, 2),
    Sketcher.Constraint("Vertical", 1, 2, 4, 2),
    Sketcher.Constraint("Equal", 3, 8),
    Sketcher.Constraint("Equal", 5, 6),
    Sketcher.Constraint("Angle", 1, Q("150 deg")),
    Sketcher.Constraint("DistanceX", 1, 2, 0, 2, Q("4 mm")),
    Sketcher.Constraint("DistanceX", 6, 2, -1, 1, Q("21.15 mm")),
    Sketcher.Constraint("DistanceX", 0, 2, -1, 1, Q("27.1525 mm")),
    Sketcher.Constraint("DistanceY", -1, 1, 0, 2, Q("31.034401 mm")),
    Sketcher.Constraint("DistanceY", -1, 1, 3, 2, Q("26.415599 mm")),
    Sketcher.Constraint("DistanceY", 7, 2, -1, 1, Q("30.801901 mm")),
])
pocket8 = doc.addObject("PartDesign::Pocket", "Pocket007")
body.addObject(pocket8)
pocket8.Profile = sketch13
pocket8.setExpression("Length", "Params.pocket8_length")

sketch14 = doc.addObject("Sketcher::SketchObject", "Sketch013")
body.addObject(sketch14)
sketch14.AttachmentSupport = (doc.XZ_Plane, [""])
sketch14.MapMode = "FlatFace"
sketch14.AttachmentOffset = App.Placement(App.Vector(0, 0, -5), App.Rotation())
sketch14.addGeometry([
    Part.Circle(App.Vector(20, -39.8, 0), App.Vector(0, 0, 1), 2.1),
    Part.Circle(App.Vector(20, 39.8, 0), App.Vector(0, 0, 1), 2.1),
], False)
sketch14.addConstraint([
    Sketcher.Constraint("Equal", 0, 1),
    Sketcher.Constraint("Symmetric", 0, 3, 1, 3, -1),
    Sketcher.Constraint("Diameter", 0, Q("4.2 mm")),
    Sketcher.Constraint("DistanceX", -1, 1, 0, 3, Q("20 mm")),
    Sketcher.Constraint("DistanceY", 0, 3, 1, 3, Q("79.5 mm")),
])
sketch14.setExpression("Constraints[2]", "Params.sketch14_diameter")
pocket9 = doc.addObject("PartDesign::Pocket", "Pocket008")
body.addObject(pocket9)
pocket9.Profile = sketch14
pocket9.setExpression("Length", "Params.pocket9_length")
pocket9.Reversed = True
doc.recompute()

chamfer = doc.addObject("PartDesign::Chamfer", "Chamfer")
body.addObject(chamfer)
chamfer.Base = (pocket9, edges_at(pocket9, [
    (-9.25, 5, -36),
    (5.75, 5, -36),
    (-9.25, 5, -20),
    (5.75, 5, -20),
    (5.75, 5, 20),
    (-9.25, 5, 20),
    (5.75, 5, 36),
    (-9.25, 5, 36),
]))
chamfer.setExpression("Size", "Params.chamfer_size")

sketch15 = doc.addObject("Sketcher::SketchObject", "Sketch014")
body.addObject(sketch15)
sketch15.AttachmentSupport = (doc.XZ_Plane, [""])
sketch15.MapMode = "FlatFace"
sketch15.AttachmentOffset = App.Placement(App.Vector(0, 0, -5), App.Rotation())
add_polygon(sketch15, [(-15, -8), (-40, -20), (-40, 20), (-15, 8)])
sketch15.addConstraint([
    Sketcher.Constraint("Vertical", 1),
    Sketcher.Constraint("Vertical", 3),
    Sketcher.Constraint("Equal", 0, 2),
    Sketcher.Constraint("DistanceY", 1, 1, 1, 2, Q("40 mm")),
    Sketcher.Constraint("DistanceY", 3, 2, 3, 1, Q("15 mm")),
    Sketcher.Constraint("DistanceX", 0, 2, -1, 1, Q("40 mm")),
    Sketcher.Constraint("DistanceY", 0, 2, -1, 1, Q("20 mm")),
    Sketcher.Constraint("DistanceX", 2, 2, -1, 1, Q("15 mm")),
])
sketch15.setExpression("Constraints[7]", "Params.sketch15_height")
sketch15.setExpression("Constraints[8]", "Params.sketch15_height2")
pocket10 = doc.addObject("PartDesign::Pocket", "Pocket009")
body.addObject(pocket10)
pocket10.Profile = sketch15
pocket10.Type = "ThroughAll"
pocket10.Reversed = True
doc.recompute()

chamfer2 = doc.addObject("PartDesign::Chamfer", "Chamfer001")
body.addObject(chamfer2)
chamfer2.Base = (pocket10, edges_at(pocket10, [(30.75, -33, 39.75), (30.75, -33, -39.75)]))
chamfer2.setExpression("Size", "Params.chamfer2_size")
doc.recompute()

chamfer3 = doc.addObject("PartDesign::Chamfer", "Chamfer002")
body.addObject(chamfer3)
chamfer3.Base = (chamfer2, edges_at(chamfer2, [(11, -33, 0)]))
chamfer3.setExpression("Size", "Params.chamfer3_size")

sketch16 = doc.addObject("Sketcher::SketchObject", "Sketch015")
body.addObject(sketch16)
sketch16.AttachmentSupport = (doc.XZ_Plane, [""])
sketch16.MapMode = "FlatFace"
sketch16.AttachmentOffset = App.Placement(App.Vector(0, 0, -1), App.Rotation())
sketch16.addGeometry([
    Part.Circle(App.Vector(20, -39.8, 0), App.Vector(0, 0, 1), 1.8),
    Part.Circle(App.Vector(20, 39.8, 0), App.Vector(0, 0, 1), 1.8),
], False)
sketch16.addConstraint([
    Sketcher.Constraint("Equal", 0, 1),
    Sketcher.Constraint("Symmetric", 0, 3, 1, 3, -1),
    Sketcher.Constraint("Diameter", 0, Q("3.5 mm")),
    Sketcher.Constraint("DistanceX", -1, 1, 0, 3, Q("20 mm")),
    Sketcher.Constraint("DistanceY", 0, 3, 1, 3, Q("79.5 mm")),
])
sketch16.setExpression("Constraints[2]", "Params.sketch16_diameter")
pocket11 = doc.addObject("PartDesign::Pocket", "Pocket010")
body.addObject(pocket11)
pocket11.Profile = sketch16
pocket11.setExpression("Length", "Params.pocket11_length")
pocket11.Reversed = True
doc.recompute()

fillet = doc.addObject("PartDesign::Fillet", "Fillet")
body.addObject(fillet)
fillet.Base = (pocket11, edges_at(pocket11, [
    (-40, -1.5, -50),
    (-40, -1.5, 50),
    (-40, -1.5, 20),
    (-40, -1.5, -20),
    (-15, -1.5, -7.5),
    (-15, -1.5, 7.5),
]))
fillet.setExpression("Radius", "Params.fillet_radius")
doc.recompute()

fillet2 = doc.addObject("PartDesign::Fillet", "Fillet001")
body.addObject(fillet2)
fillet2.Base = (fillet, edges_at(fillet, [(25, 5, 0)]))
fillet2.setExpression("Radius", "Params.fillet2_radius")
doc.recompute()

fillet3 = doc.addObject("PartDesign::Fillet", "Fillet002")
body.addObject(fillet3)
fillet3.Base = (fillet2, edges_at(fillet2, [
    (32.5, -6.5, -25),
    (32.5, -33, -25),
    (32.5, -33, 25),
    (32.5, -6.5, 25),
]))
fillet3.setExpression("Radius", "Params.fillet3_radius")

doc.recompute()
